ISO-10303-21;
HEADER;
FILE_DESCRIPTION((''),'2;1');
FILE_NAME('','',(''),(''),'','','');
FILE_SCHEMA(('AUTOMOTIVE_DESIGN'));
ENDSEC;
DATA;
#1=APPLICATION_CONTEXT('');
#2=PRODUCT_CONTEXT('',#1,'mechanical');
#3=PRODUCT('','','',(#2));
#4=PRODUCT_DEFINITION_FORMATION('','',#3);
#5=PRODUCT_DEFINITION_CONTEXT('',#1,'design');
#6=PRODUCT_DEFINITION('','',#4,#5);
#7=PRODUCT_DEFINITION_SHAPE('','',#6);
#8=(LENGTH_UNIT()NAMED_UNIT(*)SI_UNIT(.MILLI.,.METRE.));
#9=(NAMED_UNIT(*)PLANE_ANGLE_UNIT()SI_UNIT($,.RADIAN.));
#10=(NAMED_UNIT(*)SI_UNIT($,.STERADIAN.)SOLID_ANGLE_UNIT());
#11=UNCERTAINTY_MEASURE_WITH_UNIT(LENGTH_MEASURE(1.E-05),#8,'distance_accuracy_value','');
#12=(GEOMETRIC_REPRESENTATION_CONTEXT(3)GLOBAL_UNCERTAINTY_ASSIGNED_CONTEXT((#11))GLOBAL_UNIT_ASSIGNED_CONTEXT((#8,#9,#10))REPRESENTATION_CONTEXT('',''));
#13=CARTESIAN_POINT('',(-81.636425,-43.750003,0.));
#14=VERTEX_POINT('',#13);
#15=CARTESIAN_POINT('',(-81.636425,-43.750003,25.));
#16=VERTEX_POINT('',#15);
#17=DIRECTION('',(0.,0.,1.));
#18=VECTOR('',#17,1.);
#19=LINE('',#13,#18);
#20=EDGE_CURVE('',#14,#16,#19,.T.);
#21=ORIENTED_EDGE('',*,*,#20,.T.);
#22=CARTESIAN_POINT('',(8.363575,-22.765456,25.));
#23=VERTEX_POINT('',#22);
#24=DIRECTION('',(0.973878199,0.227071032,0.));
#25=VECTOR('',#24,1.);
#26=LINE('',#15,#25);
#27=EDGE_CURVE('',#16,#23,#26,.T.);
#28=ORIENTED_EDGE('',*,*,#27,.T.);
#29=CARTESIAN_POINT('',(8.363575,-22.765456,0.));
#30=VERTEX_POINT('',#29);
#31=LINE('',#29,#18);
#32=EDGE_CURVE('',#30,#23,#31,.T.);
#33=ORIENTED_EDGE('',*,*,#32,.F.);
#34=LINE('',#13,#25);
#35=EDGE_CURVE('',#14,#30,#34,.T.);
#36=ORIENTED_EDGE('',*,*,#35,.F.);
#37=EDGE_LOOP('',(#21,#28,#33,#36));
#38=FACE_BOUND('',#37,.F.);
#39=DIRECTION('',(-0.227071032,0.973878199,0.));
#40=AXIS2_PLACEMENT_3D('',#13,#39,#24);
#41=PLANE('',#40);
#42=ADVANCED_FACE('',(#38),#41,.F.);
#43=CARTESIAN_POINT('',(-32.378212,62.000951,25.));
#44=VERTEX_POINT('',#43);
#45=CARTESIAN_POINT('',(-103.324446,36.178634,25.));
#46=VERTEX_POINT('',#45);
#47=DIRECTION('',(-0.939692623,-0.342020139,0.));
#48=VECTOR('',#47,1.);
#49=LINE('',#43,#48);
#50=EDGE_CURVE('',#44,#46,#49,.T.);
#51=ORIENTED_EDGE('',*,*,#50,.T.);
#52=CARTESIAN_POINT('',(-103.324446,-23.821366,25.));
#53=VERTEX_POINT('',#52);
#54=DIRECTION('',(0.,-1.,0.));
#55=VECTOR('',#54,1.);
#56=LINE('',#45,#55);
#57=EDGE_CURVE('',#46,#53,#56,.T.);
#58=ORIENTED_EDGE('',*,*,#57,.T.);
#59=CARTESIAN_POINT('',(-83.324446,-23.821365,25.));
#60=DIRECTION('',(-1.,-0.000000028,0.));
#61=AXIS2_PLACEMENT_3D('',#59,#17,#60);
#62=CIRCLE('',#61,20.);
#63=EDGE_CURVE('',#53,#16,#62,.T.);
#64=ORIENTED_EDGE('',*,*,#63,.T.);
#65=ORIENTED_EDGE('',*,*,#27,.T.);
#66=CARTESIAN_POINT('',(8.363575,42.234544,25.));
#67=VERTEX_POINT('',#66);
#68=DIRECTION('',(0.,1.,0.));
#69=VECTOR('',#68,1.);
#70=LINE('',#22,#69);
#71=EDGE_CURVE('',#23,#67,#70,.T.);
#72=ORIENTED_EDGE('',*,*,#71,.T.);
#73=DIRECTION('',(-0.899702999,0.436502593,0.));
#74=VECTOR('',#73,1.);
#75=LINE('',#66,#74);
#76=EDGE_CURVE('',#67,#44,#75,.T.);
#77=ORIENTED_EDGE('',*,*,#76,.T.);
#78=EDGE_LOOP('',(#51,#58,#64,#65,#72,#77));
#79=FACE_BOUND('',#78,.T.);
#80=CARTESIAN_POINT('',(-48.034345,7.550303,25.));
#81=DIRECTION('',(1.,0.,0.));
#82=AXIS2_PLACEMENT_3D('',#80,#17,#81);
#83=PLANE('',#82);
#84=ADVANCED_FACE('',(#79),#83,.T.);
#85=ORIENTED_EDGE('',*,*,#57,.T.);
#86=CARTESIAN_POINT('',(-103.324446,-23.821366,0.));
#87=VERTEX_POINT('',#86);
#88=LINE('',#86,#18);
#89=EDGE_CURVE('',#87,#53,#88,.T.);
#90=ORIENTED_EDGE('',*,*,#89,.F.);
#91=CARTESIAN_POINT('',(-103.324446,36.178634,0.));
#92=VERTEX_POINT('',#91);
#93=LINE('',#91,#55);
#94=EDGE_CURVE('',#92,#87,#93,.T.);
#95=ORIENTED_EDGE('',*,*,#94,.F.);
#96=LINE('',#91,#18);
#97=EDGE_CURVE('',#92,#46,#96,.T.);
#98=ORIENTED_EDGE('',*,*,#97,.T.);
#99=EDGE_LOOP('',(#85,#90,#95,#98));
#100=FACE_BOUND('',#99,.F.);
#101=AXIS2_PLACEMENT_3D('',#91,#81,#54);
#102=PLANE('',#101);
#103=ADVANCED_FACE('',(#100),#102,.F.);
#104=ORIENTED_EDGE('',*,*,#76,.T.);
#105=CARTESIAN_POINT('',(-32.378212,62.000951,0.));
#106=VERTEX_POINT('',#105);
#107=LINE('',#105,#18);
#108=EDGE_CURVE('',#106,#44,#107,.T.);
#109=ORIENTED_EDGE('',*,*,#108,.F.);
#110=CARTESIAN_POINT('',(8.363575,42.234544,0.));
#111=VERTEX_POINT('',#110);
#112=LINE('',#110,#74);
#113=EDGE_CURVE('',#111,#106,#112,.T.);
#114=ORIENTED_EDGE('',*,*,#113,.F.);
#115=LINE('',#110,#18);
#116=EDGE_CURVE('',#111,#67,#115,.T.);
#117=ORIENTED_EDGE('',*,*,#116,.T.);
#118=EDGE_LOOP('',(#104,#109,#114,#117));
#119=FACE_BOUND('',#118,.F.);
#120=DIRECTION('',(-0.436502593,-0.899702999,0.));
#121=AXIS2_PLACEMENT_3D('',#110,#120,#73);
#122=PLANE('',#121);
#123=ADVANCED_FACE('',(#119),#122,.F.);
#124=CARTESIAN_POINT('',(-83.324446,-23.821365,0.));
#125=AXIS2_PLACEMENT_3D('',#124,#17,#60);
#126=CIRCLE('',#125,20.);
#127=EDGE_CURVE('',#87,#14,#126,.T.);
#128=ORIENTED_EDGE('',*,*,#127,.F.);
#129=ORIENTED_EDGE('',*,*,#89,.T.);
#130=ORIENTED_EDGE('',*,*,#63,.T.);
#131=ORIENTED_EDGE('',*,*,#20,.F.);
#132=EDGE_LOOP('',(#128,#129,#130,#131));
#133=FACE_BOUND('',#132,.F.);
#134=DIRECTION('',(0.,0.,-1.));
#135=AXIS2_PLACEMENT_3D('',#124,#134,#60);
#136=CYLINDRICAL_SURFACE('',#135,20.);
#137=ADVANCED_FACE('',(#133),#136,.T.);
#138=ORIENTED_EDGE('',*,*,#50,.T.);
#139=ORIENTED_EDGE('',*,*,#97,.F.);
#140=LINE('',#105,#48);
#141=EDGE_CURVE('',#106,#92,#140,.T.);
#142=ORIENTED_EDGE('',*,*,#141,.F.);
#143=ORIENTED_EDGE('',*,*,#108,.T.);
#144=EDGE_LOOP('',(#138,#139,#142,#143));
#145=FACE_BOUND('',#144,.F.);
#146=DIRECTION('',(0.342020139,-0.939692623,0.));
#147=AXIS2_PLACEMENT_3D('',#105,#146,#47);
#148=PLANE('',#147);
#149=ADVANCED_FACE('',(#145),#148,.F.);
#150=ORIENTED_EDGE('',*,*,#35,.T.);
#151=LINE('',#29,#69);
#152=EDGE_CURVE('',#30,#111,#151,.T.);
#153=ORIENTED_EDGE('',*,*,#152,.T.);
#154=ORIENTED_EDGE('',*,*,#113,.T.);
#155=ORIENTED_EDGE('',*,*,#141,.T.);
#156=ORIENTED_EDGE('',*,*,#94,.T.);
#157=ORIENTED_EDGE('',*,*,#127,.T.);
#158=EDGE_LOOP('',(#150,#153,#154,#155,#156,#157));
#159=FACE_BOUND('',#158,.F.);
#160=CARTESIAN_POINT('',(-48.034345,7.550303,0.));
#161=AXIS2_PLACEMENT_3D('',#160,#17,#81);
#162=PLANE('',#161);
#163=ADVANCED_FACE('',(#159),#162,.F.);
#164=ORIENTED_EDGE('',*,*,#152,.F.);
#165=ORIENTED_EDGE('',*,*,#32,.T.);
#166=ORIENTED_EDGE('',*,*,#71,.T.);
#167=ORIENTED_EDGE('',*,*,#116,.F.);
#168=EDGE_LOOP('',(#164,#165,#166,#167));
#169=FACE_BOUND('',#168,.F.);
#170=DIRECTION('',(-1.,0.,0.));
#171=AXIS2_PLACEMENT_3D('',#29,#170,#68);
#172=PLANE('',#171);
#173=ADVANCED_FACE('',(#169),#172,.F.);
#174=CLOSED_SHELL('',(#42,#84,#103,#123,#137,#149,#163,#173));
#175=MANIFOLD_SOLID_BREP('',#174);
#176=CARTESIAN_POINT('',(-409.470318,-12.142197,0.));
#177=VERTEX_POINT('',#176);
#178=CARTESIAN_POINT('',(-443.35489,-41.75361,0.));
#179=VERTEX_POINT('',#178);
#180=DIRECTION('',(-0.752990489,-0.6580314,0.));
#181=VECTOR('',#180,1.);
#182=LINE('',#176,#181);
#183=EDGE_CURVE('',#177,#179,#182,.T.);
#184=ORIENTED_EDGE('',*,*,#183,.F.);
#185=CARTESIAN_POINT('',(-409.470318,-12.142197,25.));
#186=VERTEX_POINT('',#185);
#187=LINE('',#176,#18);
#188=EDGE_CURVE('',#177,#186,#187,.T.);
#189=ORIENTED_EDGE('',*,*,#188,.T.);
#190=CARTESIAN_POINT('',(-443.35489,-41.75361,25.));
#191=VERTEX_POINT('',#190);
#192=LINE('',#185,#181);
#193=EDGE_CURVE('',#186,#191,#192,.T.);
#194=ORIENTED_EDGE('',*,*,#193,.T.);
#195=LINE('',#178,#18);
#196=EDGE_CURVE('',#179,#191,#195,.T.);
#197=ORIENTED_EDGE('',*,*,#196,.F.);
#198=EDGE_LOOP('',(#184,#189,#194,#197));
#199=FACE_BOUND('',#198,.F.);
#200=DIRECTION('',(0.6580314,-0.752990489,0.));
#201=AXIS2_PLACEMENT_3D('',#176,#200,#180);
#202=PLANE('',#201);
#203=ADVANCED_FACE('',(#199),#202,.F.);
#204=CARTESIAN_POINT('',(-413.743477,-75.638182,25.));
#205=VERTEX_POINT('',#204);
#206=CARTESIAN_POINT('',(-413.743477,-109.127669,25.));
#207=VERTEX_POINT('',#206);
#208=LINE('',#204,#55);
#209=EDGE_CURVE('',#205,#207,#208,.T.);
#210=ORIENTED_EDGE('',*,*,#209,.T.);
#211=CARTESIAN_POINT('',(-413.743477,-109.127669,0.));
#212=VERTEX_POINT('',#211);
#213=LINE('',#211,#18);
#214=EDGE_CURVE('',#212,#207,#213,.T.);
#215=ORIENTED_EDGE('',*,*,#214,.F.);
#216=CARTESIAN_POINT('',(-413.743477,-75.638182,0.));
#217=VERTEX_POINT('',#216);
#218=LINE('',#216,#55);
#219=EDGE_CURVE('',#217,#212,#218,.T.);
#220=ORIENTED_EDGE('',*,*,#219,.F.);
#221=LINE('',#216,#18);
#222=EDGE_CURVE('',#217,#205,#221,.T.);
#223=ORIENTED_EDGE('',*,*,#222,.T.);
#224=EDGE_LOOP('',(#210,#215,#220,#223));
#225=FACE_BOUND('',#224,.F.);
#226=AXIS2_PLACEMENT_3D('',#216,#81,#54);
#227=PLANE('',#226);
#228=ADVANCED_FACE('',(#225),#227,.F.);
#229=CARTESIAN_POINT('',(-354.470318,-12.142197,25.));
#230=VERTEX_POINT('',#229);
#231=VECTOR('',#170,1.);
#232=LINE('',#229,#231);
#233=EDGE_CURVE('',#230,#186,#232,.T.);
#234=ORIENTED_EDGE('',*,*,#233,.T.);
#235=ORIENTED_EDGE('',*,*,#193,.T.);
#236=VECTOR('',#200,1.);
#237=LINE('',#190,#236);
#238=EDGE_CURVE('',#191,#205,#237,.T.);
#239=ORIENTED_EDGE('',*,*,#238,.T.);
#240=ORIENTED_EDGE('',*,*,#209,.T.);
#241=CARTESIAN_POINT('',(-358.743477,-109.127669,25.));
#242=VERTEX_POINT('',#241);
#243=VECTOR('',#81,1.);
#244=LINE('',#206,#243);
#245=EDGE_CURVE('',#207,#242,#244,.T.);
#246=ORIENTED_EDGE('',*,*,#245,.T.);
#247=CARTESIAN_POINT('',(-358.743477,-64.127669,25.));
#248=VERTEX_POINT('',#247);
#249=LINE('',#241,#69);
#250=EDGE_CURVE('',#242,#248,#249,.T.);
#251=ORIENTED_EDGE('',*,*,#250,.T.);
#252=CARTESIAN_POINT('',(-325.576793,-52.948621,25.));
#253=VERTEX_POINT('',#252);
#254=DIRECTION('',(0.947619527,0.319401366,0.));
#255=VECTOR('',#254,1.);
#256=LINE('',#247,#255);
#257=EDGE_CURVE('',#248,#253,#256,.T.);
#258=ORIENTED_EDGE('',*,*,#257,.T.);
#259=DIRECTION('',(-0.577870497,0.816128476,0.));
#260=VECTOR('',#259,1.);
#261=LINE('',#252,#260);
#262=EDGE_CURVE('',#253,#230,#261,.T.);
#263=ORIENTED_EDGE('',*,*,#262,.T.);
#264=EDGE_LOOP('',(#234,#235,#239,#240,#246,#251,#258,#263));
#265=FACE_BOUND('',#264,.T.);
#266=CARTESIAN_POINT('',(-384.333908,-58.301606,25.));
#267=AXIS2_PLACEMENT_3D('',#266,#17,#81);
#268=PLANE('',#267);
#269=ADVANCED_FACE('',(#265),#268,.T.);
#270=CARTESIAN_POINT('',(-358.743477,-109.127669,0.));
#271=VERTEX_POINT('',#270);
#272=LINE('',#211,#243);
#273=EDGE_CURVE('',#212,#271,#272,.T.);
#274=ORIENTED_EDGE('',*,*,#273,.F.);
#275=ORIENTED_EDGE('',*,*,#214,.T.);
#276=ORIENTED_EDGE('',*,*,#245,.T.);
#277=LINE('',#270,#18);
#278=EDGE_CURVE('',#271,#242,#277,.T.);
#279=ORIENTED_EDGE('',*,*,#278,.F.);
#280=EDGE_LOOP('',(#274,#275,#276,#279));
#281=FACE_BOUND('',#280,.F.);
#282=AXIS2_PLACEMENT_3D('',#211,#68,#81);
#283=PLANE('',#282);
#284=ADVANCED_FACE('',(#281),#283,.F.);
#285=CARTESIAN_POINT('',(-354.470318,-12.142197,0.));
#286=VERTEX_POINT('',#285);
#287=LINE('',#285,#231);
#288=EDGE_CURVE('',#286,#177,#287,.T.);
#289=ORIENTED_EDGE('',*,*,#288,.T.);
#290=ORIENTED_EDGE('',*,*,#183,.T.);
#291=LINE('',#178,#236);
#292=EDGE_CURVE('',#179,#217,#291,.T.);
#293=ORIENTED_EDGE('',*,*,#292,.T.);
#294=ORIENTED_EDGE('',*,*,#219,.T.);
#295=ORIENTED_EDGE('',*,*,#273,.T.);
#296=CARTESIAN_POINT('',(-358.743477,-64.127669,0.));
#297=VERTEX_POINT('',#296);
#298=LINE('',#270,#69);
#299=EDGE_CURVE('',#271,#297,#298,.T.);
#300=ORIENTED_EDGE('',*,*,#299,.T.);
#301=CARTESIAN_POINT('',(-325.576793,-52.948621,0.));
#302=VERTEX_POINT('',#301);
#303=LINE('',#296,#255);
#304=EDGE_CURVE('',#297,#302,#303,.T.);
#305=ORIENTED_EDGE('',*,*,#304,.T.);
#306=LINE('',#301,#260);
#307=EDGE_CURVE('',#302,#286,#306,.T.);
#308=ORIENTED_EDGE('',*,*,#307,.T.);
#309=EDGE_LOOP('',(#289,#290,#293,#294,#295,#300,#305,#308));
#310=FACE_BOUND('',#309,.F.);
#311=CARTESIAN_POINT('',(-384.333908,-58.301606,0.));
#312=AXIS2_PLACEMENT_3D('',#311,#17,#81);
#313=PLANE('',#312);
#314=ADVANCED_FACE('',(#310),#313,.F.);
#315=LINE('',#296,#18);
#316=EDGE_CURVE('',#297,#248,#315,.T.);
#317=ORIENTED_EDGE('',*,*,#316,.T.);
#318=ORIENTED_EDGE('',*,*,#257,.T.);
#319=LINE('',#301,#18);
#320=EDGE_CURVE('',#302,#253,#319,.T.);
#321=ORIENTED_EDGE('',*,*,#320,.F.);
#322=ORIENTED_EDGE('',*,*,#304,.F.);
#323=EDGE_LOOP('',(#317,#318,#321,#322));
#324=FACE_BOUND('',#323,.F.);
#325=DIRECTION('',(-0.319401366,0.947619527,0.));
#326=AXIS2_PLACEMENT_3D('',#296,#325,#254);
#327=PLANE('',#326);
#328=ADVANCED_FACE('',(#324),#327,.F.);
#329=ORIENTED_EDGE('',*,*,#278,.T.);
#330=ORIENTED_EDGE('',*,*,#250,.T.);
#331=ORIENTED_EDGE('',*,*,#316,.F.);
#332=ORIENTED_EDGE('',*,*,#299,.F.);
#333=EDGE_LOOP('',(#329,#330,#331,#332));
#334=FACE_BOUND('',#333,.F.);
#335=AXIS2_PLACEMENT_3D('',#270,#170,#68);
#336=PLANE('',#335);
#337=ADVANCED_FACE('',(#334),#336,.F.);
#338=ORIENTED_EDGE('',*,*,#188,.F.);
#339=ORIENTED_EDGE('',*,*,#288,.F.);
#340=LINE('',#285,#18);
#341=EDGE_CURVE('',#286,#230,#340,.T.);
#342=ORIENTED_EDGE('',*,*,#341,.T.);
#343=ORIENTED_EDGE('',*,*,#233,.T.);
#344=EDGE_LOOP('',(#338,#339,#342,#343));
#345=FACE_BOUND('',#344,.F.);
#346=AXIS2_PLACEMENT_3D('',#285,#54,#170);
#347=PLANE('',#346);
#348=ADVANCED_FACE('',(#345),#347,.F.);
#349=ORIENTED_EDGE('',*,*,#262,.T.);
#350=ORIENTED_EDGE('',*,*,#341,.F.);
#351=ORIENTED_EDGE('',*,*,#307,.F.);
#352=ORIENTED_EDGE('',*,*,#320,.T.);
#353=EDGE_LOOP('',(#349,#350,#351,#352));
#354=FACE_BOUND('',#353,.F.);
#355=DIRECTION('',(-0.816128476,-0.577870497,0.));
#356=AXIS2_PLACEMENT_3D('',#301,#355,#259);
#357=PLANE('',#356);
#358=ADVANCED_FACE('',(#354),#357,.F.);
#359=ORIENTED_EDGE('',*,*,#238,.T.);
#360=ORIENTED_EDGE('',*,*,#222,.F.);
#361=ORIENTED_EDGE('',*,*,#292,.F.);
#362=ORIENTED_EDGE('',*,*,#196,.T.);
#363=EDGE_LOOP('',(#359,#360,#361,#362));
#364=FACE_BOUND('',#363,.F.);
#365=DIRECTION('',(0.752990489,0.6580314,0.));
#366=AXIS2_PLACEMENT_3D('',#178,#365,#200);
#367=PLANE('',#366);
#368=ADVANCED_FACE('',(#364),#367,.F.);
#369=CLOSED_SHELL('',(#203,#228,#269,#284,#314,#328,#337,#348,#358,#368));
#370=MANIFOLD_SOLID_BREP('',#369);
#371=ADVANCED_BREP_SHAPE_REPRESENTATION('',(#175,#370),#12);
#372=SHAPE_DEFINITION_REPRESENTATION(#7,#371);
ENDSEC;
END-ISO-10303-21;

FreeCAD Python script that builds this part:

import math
import FreeCAD as App
import Part
import Sketcher

V = App.Vector
Q = App.Units.Quantity


def add_polygon(sketch, points):
    """Adds a closed chain of lines whose ends are joined by coincident constraints."""
    first, n = sketch.GeometryCount, len(points)
    for a, b in zip(points, points[1:] + points[:1]):
        sketch.addGeometry(Part.LineSegment(App.Vector(*a, 0), App.Vector(*b, 0)), False)
    for i in range(n):
        sketch.addConstraint(Sketcher.Constraint("Coincident", first + i, 2, first + (i + 1) % n, 1))

doc = App.newDocument("Part")
body = doc.addObject("PartDesign::Body", "Body")
body.AllowCompound = True

sketch1 = body.newObject("Sketcher::SketchObject", "Sketch")
sketch1.AttachmentSupport = (doc.getObject("XY_Plane"), [""])
sketch1.MapMode = "FlatFace"
add_polygon(sketch1, [(-414, -76), (-414, -109), (-359, -109), (-359, -64), (-326, -53), (-354, -12), (-409, -12), (-443, -42)])
sketch1.addGeometry(Part.LineSegment(V(-32, 62, 0), V(-103, 36, 0)), False)
sketch1.addGeometry(Part.LineSegment(V(-103, 36, 0), V(-103, -24, 0)), False)
sketch1.addGeometry(Part.ArcOfCircle(Part.Circle(V(-83, -24, 0), V(0, 0, 1), 20), math.radians(-180), math.radians(-85)), False)
sketch1.addGeometry(Part.LineSegment(V(-82, -44, 0), V(8, -23, 0)), False)
sketch1.addGeometry(Part.LineSegment(V(8, -23, 0), V(8, 42, 0)), False)
sketch1.addGeometry(Part.LineSegment(V(8, 42, 0), V(-32, 62, 0)), False)
sketch1.addConstraint([
    Sketcher.Constraint("Coincident", 8, 2, 9, 1),
    Sketcher.Constraint("Tangent", 9, 2, 10, 1),
    Sketcher.Constraint("Coincident", 10, 2, 11, 1),
    Sketcher.Constraint("Coincident", 11, 2, 12, 1),
    Sketcher.Constraint("Coincident", 12, 2, 13, 1),
    Sketcher.Constraint("Coincident", 13, 2, 8, 1),
    Sketcher.Constraint("Vertical", 0),
    Sketcher.Constraint("Horizontal", 1),
    Sketcher.Constraint("Vertical", 2),
    Sketcher.Constraint("Horizontal", 5),
    Sketcher.Constraint("Vertical", 9),
    Sketcher.Constraint("Vertical", 12),
    Sketcher.Constraint("Perpendicular", 6, 7),
    Sketcher.Constraint("Equal", 1, 5),
    Sketcher.Constraint("Equal", 6, 7),
    Sketcher.Constraint("Radius", 10, 20.0),
    Sketcher.Constraint("DistanceX", 1, 1, 1, 2, 55.0),
    Sketcher.Constraint("DistanceY", 2, 1, 2, 2, 45.0),
    Sketcher.Constraint("DistanceY", 9, 2, 9, 1, 60.0),
    Sketcher.Constraint("DistanceY", 12, 1, 12, 2, 65.0),
    Sketcher.Constraint("Angle", 8, Q("-160 deg")),
    Sketcher.Constraint("Distance", 3, 35.000001),
    Sketcher.Constraint("Distance", 4, 50.0),
    Sketcher.Constraint("Distance", 6, 45.0),
    Sketcher.Constraint("DistanceX", 10, 2, 11, 2, 90.0),
    Sketcher.Constraint("Distance", 11, 92.414021),
    Sketcher.Constraint("DistanceY", 0, 2, 0, 1, 33.489487),
    Sketcher.Constraint("DistanceY", 0, 2, -1, 1, 109.127669),
    Sketcher.Constraint("DistanceY", 3, 2, -1, 1, 52.948621),
    Sketcher.Constraint("DistanceX", 4, 2, -1, 1, 354.470318),
    Sketcher.Constraint("DistanceX", 13, 2, -1, 1, 32.378212),
    Sketcher.Constraint("DistanceY", -1, 1, 13, 2, 62.000951),
    Sketcher.Constraint("DistanceX", 0, 2, 10, 3, 330.419031),
    Sketcher.Constraint("DistanceX", 10, 3, 10, 2, 1.688021),
])
pad1 = body.newObject("PartDesign::Pad", "Pad")
pad1.Profile = sketch1
pad1.Length = 25

doc.recompute()
